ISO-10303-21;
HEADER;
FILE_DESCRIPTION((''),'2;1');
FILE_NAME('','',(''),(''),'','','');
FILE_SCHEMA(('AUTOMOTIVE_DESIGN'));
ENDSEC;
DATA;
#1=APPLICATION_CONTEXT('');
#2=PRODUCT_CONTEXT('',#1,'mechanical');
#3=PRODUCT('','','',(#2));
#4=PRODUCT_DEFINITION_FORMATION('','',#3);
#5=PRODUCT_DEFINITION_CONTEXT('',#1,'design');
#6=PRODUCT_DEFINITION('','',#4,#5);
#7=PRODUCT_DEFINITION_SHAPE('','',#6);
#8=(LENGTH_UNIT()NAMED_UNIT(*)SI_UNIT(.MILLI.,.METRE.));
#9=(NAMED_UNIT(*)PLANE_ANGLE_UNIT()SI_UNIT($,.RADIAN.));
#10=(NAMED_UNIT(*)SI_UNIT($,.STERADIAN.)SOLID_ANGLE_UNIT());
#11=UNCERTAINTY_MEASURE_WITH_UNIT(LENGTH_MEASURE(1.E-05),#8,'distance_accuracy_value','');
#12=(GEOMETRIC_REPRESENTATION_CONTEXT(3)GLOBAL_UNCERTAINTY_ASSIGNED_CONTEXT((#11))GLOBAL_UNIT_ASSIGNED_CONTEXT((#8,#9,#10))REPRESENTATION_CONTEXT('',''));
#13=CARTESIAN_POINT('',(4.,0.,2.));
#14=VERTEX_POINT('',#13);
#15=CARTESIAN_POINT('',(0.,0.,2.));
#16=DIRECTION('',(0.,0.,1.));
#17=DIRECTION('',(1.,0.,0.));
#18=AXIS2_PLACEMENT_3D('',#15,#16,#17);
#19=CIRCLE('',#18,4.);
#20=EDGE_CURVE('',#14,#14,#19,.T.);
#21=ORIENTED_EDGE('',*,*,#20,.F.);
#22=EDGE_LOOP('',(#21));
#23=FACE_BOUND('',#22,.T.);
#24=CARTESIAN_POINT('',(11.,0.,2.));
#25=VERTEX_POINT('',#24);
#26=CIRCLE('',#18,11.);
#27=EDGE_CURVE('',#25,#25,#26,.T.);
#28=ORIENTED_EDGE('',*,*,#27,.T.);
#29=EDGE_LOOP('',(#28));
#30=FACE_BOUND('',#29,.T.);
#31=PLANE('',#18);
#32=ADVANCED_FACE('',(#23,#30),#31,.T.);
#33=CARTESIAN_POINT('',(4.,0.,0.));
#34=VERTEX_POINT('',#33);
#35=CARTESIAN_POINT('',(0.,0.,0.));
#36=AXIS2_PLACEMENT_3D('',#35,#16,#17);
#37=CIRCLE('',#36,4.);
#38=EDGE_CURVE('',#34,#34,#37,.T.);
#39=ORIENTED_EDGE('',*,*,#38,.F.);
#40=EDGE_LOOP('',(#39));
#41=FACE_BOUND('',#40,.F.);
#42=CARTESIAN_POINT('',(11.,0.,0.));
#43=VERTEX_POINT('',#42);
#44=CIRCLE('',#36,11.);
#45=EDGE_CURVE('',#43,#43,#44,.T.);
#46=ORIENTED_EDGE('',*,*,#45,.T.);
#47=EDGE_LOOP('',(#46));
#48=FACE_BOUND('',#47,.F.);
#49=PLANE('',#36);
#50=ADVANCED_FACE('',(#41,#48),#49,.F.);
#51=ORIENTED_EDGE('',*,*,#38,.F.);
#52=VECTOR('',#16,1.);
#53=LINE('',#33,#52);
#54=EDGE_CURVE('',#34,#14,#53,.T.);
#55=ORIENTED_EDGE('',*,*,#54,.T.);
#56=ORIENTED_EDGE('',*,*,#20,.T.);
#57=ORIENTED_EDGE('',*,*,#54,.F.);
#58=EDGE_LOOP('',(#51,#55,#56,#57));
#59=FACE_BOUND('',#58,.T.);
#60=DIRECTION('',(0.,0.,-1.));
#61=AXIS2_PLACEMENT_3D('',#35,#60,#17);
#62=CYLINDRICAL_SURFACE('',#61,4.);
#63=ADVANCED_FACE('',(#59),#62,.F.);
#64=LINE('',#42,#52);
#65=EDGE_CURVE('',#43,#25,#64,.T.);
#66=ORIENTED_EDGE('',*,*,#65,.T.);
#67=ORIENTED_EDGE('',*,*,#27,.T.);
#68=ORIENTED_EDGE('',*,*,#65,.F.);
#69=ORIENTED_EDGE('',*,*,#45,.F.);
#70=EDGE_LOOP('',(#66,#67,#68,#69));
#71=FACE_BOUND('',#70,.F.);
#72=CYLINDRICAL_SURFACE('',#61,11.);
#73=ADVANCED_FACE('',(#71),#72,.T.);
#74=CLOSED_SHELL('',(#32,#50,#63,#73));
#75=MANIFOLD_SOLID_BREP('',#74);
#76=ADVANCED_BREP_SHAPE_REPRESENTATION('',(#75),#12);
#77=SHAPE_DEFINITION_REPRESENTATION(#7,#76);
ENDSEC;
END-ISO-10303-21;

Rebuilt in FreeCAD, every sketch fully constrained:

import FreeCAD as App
import Part
import Sketcher

doc = App.newDocument("Part")
body = doc.addObject("PartDesign::Body", "Body")

sketch1 = body.newObject("Sketcher::SketchObject", "Sketch")
sketch1.AttachmentSupport = (doc.getObject("XY_Plane"), [""])
sketch1.MapMode = "FlatFace"
sketch1.addGeometry([
    Part.Circle(App.Vector(0, 0, 0), App.Vector(0, 0, 1), 11),
    Part.Circle(App.Vector(0, 0, 0), App.Vector(0, 0, 1), 4),
], False)
sketch1.addConstraint([
    Sketcher.Constraint("Coincident", 0, 3, -1, 1),
    Sketcher.Constraint("Coincident", 1, 3, -1, 1),
    Sketcher.Constraint("Diameter", 0, 22.0),
    Sketcher.Constraint("Diameter", 1, 8.0),
])
pad1 = body.newObject("PartDesign::Pad", "Pad")
pad1.Profile = sketch1
pad1.Length = 2

doc.recompute()
